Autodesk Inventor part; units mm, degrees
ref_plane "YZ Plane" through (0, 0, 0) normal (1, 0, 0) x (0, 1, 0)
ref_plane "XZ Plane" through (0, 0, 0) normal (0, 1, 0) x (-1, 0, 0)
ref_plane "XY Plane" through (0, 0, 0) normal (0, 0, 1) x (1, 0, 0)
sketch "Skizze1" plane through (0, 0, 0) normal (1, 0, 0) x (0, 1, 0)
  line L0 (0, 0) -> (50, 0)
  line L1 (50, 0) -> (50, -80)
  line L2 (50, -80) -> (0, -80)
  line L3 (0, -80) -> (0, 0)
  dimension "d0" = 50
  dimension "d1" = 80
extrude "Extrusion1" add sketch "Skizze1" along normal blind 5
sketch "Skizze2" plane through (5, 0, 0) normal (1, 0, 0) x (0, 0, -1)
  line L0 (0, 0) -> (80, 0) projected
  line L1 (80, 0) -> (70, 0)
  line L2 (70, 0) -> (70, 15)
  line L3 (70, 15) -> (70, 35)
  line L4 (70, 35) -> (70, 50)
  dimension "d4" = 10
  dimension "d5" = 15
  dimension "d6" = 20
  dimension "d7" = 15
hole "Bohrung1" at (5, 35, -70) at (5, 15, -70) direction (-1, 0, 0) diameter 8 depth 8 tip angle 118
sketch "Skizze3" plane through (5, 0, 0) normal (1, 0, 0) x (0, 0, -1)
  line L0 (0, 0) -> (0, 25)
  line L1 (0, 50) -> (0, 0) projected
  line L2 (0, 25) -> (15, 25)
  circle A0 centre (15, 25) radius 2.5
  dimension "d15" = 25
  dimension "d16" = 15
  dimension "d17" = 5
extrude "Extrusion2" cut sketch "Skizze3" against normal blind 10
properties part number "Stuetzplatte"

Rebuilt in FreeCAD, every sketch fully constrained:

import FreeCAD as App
import Part
import Sketcher

V = App.Vector
Q = App.Units.Quantity

doc = App.newDocument("Part")
params = doc.addObject("Spreadsheet::Sheet", "Params")
for row, (alias, value) in enumerate([
    ("sketch1_width", "50 mm"),
    ("sketch1_height", "80 mm"),
    ("pad1_length", "5 mm"),
    ("sketch2_diameter", "8 mm"),
    ("hole_diameter", "8 mm"),
    ("hole_depth", "8 mm"),
    ("sketch3_diameter", "5 mm"),
    ("pocket1_length", "10 mm"),
], start=1):
    params.set(f"A{row}", alias)
    params.set(f"B{row}", "=" + value)
    params.setAlias(f"B{row}", alias)

body = doc.addObject("PartDesign::Body", "Body")

# Sketch on YZ plane
sketch1 = doc.addObject("Sketcher::SketchObject", "Sketch")
body.addObject(sketch1)
sketch1.AttachmentSupport = (doc.YZ_Plane, [""])
sketch1.MapMode = "FlatFace"
sketch1.addGeometry([
    Part.LineSegment(V(50, 0, 0), V(0, 0, 0)),
    Part.LineSegment(V(0, 0, 0), V(0, -80, 0)),
    Part.LineSegment(V(0, -80, 0), V(50, -80, 0)),
    Part.LineSegment(V(50, -80, 0), V(50, 0, 0)),
], False)
sketch1.addConstraint([
    Sketcher.Constraint("Coincident", 0, 2, 1, 1),
    Sketcher.Constraint("Coincident", 1, 2, 2, 1),
    Sketcher.Constraint("Coincident", 2, 2, 3, 1),
    Sketcher.Constraint("Coincident", 3, 2, 0, 1),
    Sketcher.Constraint("Horizontal", 0),
    Sketcher.Constraint("Vertical", 1),
    Sketcher.Constraint("Horizontal", 2),
    Sketcher.Constraint("Vertical", 3),
    Sketcher.Constraint("Coincident", 0, 2, -1, 1),
    Sketcher.Constraint("DistanceX", 0, 2, 0, 1, Q("50 mm")),
    Sketcher.Constraint("DistanceY", 1, 2, 1, 1, Q("80 mm")),
])
sketch1.setExpression("Constraints[9]", "Params.sketch1_width")
sketch1.setExpression("Constraints[10]", "Params.sketch1_height")
pad1 = doc.addObject("PartDesign::Pad", "Pad")
body.addObject(pad1)
pad1.Profile = sketch1
pad1.setExpression("Length", "Params.pad1_length")

# Sketch on YZ plane
sketch2 = doc.addObject("Sketcher::SketchObject", "Sketch001")
body.addObject(sketch2)
sketch2.AttachmentSupport = (doc.YZ_Plane, [""])
sketch2.MapMode = "FlatFace"
sketch2.AttachmentOffset = App.Placement(V(0, 0, 5), App.Rotation())
sketch2.addGeometry([
    Part.Circle(V(35, -70, 0), V(0, 0, 1), 4),
    Part.Circle(V(15, -70, 0), V(0, 0, 1), 4),
], False)
sketch2.addConstraint([
    Sketcher.Constraint("Equal", 0, 1),
    Sketcher.Constraint("Horizontal", 0, 3, 1, 3),
    Sketcher.Constraint("Diameter", 0, Q("8 mm")),
    Sketcher.Constraint("DistanceX", -1, 1, 0, 3, Q("35 mm")),
    Sketcher.Constraint("DistanceY", 0, 3, -1, 1, Q("70 mm")),
    Sketcher.Constraint("DistanceX", -1, 1, 1, 3, Q("15 mm")),
])
sketch2.setExpression("Constraints[2]", "Params.sketch2_diameter")
doc.recompute()
hole = doc.addObject("PartDesign::Hole", "Hole")
body.addObject(hole)
hole.Profile = sketch2
hole.ThreadType = "None"
hole.setExpression("Diameter", "Params.hole_diameter")
hole.DepthType = "Dimension"
hole.setExpression("Depth", "Params.hole_depth")
hole.DrillPoint = "Angled"
hole.DrillPointAngle = 118

# Sketch on YZ plane
sketch3 = doc.addObject("Sketcher::SketchObject", "Sketch002")
body.addObject(sketch3)
sketch3.AttachmentSupport = (doc.YZ_Plane, [""])
sketch3.MapMode = "FlatFace"
sketch3.AttachmentOffset = App.Placement(V(0, 0, 5), App.Rotation())
sketch3.addGeometry(Part.Circle(V(25, -15, 0), V(0, 0, 1), 2.5), False)
sketch3.addConstraint([
    Sketcher.Constraint("Diameter", 0, Q("5 mm")),
    Sketcher.Constraint("DistanceX", -1, 1, 0, 3, Q("25 mm")),
    Sketcher.Constraint("DistanceY", 0, 3, -1, 1, Q("15 mm")),
])
sketch3.setExpression("Constraints[0]", "Params.sketch3_diameter")
pocket1 = doc.addObject("PartDesign::Pocket", "Pocket")
body.addObject(pocket1)
pocket1.Profile = sketch3
pocket1.setExpression("Length", "Params.pocket1_length")

doc.recompute()
